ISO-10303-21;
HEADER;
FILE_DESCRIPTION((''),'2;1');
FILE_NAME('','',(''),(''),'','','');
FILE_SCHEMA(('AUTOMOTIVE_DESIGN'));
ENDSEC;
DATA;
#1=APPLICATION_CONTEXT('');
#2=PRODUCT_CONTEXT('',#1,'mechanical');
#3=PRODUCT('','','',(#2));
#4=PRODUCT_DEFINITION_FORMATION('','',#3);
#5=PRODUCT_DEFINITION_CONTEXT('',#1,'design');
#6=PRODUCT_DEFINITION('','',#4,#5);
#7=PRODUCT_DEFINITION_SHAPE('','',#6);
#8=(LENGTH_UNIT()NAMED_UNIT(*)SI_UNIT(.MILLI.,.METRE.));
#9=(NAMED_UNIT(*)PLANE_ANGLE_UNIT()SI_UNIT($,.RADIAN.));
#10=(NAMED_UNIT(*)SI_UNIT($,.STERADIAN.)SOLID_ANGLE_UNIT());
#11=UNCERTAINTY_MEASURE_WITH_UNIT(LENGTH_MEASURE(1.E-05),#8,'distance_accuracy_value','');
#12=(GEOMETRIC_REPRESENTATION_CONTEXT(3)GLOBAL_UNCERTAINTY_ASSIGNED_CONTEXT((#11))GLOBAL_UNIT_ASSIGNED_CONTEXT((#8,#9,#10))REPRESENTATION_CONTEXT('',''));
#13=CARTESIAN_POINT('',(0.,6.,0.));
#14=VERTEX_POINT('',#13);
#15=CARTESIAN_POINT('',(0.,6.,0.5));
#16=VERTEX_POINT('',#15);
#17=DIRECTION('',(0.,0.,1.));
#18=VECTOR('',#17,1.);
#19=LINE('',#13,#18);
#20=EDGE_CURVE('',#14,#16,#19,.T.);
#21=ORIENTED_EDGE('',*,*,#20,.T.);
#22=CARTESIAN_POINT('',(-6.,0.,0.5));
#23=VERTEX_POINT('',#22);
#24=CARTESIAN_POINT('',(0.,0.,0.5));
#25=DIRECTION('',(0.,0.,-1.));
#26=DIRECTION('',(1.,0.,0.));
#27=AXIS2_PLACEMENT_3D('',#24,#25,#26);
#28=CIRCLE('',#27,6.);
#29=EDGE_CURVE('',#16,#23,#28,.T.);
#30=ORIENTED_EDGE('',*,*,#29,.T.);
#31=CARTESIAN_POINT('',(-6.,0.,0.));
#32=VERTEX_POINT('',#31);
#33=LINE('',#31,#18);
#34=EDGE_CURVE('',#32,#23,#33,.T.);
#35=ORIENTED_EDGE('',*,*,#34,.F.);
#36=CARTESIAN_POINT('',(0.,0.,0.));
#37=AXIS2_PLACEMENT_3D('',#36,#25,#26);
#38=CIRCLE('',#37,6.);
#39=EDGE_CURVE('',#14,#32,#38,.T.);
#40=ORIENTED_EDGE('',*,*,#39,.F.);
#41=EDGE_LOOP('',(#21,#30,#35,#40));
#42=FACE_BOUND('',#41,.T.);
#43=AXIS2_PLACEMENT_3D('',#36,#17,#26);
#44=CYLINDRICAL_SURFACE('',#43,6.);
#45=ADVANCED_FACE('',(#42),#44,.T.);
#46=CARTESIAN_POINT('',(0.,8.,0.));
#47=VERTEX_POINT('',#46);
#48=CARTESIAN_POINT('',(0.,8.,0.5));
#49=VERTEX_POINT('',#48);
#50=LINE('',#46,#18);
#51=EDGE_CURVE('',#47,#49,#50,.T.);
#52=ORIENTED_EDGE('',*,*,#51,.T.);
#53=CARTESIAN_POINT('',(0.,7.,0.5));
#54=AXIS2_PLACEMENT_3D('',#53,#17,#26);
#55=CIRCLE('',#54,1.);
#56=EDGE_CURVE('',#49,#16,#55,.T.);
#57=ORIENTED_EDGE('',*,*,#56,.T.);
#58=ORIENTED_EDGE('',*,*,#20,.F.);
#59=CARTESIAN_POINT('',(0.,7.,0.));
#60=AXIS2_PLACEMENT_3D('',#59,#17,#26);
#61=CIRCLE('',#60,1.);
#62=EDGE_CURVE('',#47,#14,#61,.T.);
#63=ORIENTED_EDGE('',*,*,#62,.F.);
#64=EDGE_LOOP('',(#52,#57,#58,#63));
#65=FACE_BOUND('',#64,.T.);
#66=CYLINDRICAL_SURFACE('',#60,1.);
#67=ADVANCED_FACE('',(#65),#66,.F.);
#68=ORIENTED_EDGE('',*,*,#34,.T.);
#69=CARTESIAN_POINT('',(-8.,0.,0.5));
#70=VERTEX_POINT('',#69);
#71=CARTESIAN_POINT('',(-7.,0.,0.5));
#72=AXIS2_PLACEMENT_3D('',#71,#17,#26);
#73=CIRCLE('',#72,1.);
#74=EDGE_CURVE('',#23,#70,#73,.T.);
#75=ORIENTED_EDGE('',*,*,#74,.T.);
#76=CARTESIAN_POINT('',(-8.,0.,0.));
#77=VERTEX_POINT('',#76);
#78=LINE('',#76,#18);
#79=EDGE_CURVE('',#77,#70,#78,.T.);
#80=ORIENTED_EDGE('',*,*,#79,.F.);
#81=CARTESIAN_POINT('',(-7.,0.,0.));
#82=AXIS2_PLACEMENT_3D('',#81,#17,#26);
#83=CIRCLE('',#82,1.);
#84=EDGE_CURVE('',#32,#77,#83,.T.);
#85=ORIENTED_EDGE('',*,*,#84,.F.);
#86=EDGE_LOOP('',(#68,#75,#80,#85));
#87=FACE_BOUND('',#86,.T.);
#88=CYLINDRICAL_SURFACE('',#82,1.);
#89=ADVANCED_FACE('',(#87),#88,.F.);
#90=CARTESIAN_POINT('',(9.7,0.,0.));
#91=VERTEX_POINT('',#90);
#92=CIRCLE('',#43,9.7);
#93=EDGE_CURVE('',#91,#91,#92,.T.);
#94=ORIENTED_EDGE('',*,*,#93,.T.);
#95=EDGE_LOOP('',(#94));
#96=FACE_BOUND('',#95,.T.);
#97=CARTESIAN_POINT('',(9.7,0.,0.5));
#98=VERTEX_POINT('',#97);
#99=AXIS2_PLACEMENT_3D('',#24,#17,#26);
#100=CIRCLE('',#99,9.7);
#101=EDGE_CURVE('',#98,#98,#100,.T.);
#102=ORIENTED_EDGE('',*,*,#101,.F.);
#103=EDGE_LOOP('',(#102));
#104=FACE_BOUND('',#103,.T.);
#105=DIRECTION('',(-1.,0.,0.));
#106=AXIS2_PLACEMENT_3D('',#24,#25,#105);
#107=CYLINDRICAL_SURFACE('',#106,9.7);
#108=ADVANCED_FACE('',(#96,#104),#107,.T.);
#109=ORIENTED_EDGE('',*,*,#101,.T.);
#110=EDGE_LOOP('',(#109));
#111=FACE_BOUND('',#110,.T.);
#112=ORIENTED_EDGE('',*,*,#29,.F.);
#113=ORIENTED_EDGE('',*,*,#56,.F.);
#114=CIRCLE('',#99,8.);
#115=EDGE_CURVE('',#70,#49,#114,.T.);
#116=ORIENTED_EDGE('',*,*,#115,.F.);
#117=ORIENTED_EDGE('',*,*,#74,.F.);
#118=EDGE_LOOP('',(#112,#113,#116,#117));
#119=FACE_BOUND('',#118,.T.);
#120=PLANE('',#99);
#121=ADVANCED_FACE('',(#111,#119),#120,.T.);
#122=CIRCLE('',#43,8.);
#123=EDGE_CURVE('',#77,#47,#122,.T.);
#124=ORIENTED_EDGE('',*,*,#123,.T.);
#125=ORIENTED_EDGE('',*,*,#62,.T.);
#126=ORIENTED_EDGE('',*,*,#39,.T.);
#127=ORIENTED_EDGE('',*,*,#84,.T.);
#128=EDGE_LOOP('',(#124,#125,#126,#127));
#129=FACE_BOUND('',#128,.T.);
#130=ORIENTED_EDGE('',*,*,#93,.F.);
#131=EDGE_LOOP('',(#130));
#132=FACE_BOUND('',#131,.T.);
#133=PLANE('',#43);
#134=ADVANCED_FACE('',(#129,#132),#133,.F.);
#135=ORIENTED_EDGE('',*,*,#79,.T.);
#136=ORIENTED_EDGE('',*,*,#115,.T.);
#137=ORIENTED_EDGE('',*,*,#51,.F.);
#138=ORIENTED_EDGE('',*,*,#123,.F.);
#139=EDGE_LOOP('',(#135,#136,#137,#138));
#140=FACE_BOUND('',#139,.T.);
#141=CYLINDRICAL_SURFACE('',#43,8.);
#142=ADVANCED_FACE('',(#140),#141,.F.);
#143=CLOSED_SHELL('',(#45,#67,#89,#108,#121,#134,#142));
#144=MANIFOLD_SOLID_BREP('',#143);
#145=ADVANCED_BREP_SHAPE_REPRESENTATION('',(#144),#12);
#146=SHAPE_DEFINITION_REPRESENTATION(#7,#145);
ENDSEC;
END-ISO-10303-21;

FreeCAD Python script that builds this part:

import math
import FreeCAD as App
import Part
import Sketcher
Q = App.Units.Quantity

doc = App.newDocument("Part")
body = doc.addObject("PartDesign::Body", "Body")

sketch1 = body.newObject("Sketcher::SketchObject", "Sketch")
sketch1.AttachmentSupport = (doc.getObject("XY_Plane"), [""])
sketch1.MapMode = "FlatFace"
sketch1.addGeometry(Part.Circle(App.Vector(0, 0, 0), App.Vector(0, 0, 1), 10), False)
sketch1.addConstraint(Sketcher.Constraint("Coincident", 0, 3, -1, 1))
sketch1.addConstraint(Sketcher.Constraint("Diameter", 0, Q("19.4 mm")))
pad1 = body.newObject("PartDesign::Pad", "Pad")
pad1.Profile = sketch1
pad1.Length = 0.5

sketch2 = body.newObject("Sketcher::SketchObject", "Sketch001")
sketch2.AttachmentSupport = (doc.getObject("XY_Plane"), [""])
sketch2.MapMode = "FlatFace"
sketch2.AttachmentOffset = App.Placement(App.Vector(0, 0, 0.5), App.Rotation())
sketch2.addGeometry(Part.ArcOfCircle(Part.Circle(App.Vector(0, 0, 0), App.Vector(0, 0, 1), 8), math.radians(180), math.radians(450)), False)
sketch2.addGeometry(Part.ArcOfCircle(Part.Circle(App.Vector(0, 7, 0), App.Vector(0, 0, 1), 1), math.radians(90), math.radians(270)), False)
sketch2.addGeometry(Part.ArcOfCircle(Part.Circle(App.Vector(0, 0, 0), App.Vector(0, 0, 1), 6), math.radians(180), math.radians(450)), False)
sketch2.addGeometry(Part.ArcOfCircle(Part.Circle(App.Vector(-7, 0, 0), App.Vector(0, 0, 1), 1), math.radians(0), math.radians(180)), False)
sketch2.addConstraint(Sketcher.Constraint("Tangent", 0, 2, 1, 1))
sketch2.addConstraint(Sketcher.Constraint("Tangent", 1, 2, 2, 2))
sketch2.addConstraint(Sketcher.Constraint("Tangent", 2, 1, 3, 1))
sketch2.addConstraint(Sketcher.Constraint("Tangent", 3, 2, 0, 1))
sketch2.addConstraint(Sketcher.Constraint("Coincident", 0, 3, -1, 1))
sketch2.addConstraint(Sketcher.Constraint("Coincident", 2, 3, -1, 1))
sketch2.addConstraint(Sketcher.Constraint("PointOnObject", 1, 3, -2))
sketch2.addConstraint(Sketcher.Constraint("PointOnObject", 3, 3, -1))
sketch2.addConstraint(Sketcher.Constraint("Radius", 0, Q("8 mm")))
sketch2.addConstraint(Sketcher.Constraint("Radius", 1, Q("1 mm")))
pocket1 = body.newObject("PartDesign::Pocket", "Pocket")
pocket1.Profile = sketch2
pocket1.Type = "ThroughAll"

doc.recompute()
